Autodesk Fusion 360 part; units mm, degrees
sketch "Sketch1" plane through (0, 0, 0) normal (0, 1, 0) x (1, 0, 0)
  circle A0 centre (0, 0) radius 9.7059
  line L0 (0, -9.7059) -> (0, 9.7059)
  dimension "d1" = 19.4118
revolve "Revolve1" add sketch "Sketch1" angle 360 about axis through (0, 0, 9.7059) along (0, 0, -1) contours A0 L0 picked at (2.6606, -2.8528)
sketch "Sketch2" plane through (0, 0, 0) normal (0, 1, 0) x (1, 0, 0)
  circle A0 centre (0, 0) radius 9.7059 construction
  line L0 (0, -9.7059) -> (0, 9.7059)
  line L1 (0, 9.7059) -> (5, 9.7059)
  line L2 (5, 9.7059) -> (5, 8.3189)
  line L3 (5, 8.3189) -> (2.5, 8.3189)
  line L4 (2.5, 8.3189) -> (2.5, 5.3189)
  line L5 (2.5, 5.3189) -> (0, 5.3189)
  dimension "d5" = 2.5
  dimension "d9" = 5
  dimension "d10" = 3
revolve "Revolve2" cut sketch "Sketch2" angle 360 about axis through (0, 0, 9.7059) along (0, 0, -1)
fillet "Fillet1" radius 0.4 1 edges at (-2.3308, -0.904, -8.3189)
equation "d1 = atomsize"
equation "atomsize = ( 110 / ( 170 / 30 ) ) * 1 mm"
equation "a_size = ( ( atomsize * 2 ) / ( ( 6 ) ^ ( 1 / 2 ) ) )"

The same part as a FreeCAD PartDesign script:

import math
import FreeCAD as App
import Part
import Sketcher

V = App.Vector
Q = App.Units.Quantity


def edges_at(feature, points):
    """Names of the edges that pass closest to the given points."""
    edges = feature.Shape.Edges
    near = lambda p: min(range(len(edges)), key=lambda i: edges[i].distToShape(Part.Vertex(*p))[0])
    return sorted({f"Edge{near(p) + 1}" for p in points})


def add_polygon(sketch, points):
    """Adds a closed chain of lines whose ends are joined by coincident constraints."""
    first, n = sketch.GeometryCount, len(points)
    for a, b in zip(points, points[1:] + points[:1]):
        sketch.addGeometry(Part.LineSegment(App.Vector(*a, 0), App.Vector(*b, 0)), False)
    for i in range(n):
        sketch.addConstraint(Sketcher.Constraint("Coincident", first + i, 2, first + (i + 1) % n, 1))

doc = App.newDocument("Part")
body = doc.addObject("PartDesign::Body", "Body")

# Sketch on XZ plane
sketch1 = body.newObject("Sketcher::SketchObject", "Sketch")
sketch1.AttachmentSupport = (doc.getObject("XZ_Plane"), [""])
sketch1.MapMode = "FlatFace"
sketch1.addGeometry([
    Part.ArcOfCircle(Part.Circle(V(0, 0, 0), V(0, 0, 1), 9.7059), math.radians(-90), math.radians(90)),
    Part.LineSegment(V(0, -9.7059, 0), V(0, 9.7059, 0)),
], False)
sketch1.addConstraint([
    Sketcher.Constraint("Coincident", 0, 1, 1, 1),
    Sketcher.Constraint("Coincident", 1, 2, 0, 2),
    Sketcher.Constraint("Vertical", 1),
    Sketcher.Constraint("Coincident", 0, 3, -1, 1),
    Sketcher.Constraint("PointOnObject", 0, 1, -2),
    Sketcher.Constraint("Radius", 0, Q("9.706 mm")),
])
revolution = body.newObject("PartDesign::Revolution", "Revolution")
revolution.Profile = sketch1
revolution.ReferenceAxis = (sketch1, ["V_Axis"])
revolution.Angle = 360

# Sketch on XZ plane
sketch2 = body.newObject("Sketcher::SketchObject", "Sketch001")
sketch2.AttachmentSupport = (doc.getObject("XZ_Plane"), [""])
sketch2.MapMode = "FlatFace"
add_polygon(sketch2, [(0, -9.7059), (0, -5.3189), (2.5, -5.3189), (2.5, -8.3189), (5, -8.3189), (5, -9.7059)])  # lines 0-5
sketch2.addConstraint([
    Sketcher.Constraint("Vertical", 0),
    Sketcher.Constraint("Horizontal", 1),
    Sketcher.Constraint("Vertical", 2),
    Sketcher.Constraint("Horizontal", 3),
    Sketcher.Constraint("Vertical", 4),
    Sketcher.Constraint("Horizontal", 5),
    Sketcher.Constraint("PointOnObject", 0, 2, -2),
    Sketcher.Constraint("Equal", 1, 3),
    Sketcher.Constraint("DistanceX", 5, 2, 5, 1, Q("5 mm")),
    Sketcher.Constraint("DistanceY", 2, 2, 2, 1, Q("3 mm")),
    Sketcher.Constraint("DistanceY", 0, 1, 0, 2, Q("4.387 mm")),
    Sketcher.Constraint("DistanceY", 0, 2, -1, 1, Q("5.319 mm")),
])
groove = body.newObject("PartDesign::Groove", "Groove")
groove.Profile = sketch2
groove.ReferenceAxis = (sketch2, ["V_Axis"])
groove.Angle = 360
doc.recompute()

fillet = body.newObject("PartDesign::Fillet", "Fillet")
fillet.Base = (groove, edges_at(groove, [(-2.331, -0.904, -8.319)]))
fillet.Radius = 0.4

doc.recompute()
